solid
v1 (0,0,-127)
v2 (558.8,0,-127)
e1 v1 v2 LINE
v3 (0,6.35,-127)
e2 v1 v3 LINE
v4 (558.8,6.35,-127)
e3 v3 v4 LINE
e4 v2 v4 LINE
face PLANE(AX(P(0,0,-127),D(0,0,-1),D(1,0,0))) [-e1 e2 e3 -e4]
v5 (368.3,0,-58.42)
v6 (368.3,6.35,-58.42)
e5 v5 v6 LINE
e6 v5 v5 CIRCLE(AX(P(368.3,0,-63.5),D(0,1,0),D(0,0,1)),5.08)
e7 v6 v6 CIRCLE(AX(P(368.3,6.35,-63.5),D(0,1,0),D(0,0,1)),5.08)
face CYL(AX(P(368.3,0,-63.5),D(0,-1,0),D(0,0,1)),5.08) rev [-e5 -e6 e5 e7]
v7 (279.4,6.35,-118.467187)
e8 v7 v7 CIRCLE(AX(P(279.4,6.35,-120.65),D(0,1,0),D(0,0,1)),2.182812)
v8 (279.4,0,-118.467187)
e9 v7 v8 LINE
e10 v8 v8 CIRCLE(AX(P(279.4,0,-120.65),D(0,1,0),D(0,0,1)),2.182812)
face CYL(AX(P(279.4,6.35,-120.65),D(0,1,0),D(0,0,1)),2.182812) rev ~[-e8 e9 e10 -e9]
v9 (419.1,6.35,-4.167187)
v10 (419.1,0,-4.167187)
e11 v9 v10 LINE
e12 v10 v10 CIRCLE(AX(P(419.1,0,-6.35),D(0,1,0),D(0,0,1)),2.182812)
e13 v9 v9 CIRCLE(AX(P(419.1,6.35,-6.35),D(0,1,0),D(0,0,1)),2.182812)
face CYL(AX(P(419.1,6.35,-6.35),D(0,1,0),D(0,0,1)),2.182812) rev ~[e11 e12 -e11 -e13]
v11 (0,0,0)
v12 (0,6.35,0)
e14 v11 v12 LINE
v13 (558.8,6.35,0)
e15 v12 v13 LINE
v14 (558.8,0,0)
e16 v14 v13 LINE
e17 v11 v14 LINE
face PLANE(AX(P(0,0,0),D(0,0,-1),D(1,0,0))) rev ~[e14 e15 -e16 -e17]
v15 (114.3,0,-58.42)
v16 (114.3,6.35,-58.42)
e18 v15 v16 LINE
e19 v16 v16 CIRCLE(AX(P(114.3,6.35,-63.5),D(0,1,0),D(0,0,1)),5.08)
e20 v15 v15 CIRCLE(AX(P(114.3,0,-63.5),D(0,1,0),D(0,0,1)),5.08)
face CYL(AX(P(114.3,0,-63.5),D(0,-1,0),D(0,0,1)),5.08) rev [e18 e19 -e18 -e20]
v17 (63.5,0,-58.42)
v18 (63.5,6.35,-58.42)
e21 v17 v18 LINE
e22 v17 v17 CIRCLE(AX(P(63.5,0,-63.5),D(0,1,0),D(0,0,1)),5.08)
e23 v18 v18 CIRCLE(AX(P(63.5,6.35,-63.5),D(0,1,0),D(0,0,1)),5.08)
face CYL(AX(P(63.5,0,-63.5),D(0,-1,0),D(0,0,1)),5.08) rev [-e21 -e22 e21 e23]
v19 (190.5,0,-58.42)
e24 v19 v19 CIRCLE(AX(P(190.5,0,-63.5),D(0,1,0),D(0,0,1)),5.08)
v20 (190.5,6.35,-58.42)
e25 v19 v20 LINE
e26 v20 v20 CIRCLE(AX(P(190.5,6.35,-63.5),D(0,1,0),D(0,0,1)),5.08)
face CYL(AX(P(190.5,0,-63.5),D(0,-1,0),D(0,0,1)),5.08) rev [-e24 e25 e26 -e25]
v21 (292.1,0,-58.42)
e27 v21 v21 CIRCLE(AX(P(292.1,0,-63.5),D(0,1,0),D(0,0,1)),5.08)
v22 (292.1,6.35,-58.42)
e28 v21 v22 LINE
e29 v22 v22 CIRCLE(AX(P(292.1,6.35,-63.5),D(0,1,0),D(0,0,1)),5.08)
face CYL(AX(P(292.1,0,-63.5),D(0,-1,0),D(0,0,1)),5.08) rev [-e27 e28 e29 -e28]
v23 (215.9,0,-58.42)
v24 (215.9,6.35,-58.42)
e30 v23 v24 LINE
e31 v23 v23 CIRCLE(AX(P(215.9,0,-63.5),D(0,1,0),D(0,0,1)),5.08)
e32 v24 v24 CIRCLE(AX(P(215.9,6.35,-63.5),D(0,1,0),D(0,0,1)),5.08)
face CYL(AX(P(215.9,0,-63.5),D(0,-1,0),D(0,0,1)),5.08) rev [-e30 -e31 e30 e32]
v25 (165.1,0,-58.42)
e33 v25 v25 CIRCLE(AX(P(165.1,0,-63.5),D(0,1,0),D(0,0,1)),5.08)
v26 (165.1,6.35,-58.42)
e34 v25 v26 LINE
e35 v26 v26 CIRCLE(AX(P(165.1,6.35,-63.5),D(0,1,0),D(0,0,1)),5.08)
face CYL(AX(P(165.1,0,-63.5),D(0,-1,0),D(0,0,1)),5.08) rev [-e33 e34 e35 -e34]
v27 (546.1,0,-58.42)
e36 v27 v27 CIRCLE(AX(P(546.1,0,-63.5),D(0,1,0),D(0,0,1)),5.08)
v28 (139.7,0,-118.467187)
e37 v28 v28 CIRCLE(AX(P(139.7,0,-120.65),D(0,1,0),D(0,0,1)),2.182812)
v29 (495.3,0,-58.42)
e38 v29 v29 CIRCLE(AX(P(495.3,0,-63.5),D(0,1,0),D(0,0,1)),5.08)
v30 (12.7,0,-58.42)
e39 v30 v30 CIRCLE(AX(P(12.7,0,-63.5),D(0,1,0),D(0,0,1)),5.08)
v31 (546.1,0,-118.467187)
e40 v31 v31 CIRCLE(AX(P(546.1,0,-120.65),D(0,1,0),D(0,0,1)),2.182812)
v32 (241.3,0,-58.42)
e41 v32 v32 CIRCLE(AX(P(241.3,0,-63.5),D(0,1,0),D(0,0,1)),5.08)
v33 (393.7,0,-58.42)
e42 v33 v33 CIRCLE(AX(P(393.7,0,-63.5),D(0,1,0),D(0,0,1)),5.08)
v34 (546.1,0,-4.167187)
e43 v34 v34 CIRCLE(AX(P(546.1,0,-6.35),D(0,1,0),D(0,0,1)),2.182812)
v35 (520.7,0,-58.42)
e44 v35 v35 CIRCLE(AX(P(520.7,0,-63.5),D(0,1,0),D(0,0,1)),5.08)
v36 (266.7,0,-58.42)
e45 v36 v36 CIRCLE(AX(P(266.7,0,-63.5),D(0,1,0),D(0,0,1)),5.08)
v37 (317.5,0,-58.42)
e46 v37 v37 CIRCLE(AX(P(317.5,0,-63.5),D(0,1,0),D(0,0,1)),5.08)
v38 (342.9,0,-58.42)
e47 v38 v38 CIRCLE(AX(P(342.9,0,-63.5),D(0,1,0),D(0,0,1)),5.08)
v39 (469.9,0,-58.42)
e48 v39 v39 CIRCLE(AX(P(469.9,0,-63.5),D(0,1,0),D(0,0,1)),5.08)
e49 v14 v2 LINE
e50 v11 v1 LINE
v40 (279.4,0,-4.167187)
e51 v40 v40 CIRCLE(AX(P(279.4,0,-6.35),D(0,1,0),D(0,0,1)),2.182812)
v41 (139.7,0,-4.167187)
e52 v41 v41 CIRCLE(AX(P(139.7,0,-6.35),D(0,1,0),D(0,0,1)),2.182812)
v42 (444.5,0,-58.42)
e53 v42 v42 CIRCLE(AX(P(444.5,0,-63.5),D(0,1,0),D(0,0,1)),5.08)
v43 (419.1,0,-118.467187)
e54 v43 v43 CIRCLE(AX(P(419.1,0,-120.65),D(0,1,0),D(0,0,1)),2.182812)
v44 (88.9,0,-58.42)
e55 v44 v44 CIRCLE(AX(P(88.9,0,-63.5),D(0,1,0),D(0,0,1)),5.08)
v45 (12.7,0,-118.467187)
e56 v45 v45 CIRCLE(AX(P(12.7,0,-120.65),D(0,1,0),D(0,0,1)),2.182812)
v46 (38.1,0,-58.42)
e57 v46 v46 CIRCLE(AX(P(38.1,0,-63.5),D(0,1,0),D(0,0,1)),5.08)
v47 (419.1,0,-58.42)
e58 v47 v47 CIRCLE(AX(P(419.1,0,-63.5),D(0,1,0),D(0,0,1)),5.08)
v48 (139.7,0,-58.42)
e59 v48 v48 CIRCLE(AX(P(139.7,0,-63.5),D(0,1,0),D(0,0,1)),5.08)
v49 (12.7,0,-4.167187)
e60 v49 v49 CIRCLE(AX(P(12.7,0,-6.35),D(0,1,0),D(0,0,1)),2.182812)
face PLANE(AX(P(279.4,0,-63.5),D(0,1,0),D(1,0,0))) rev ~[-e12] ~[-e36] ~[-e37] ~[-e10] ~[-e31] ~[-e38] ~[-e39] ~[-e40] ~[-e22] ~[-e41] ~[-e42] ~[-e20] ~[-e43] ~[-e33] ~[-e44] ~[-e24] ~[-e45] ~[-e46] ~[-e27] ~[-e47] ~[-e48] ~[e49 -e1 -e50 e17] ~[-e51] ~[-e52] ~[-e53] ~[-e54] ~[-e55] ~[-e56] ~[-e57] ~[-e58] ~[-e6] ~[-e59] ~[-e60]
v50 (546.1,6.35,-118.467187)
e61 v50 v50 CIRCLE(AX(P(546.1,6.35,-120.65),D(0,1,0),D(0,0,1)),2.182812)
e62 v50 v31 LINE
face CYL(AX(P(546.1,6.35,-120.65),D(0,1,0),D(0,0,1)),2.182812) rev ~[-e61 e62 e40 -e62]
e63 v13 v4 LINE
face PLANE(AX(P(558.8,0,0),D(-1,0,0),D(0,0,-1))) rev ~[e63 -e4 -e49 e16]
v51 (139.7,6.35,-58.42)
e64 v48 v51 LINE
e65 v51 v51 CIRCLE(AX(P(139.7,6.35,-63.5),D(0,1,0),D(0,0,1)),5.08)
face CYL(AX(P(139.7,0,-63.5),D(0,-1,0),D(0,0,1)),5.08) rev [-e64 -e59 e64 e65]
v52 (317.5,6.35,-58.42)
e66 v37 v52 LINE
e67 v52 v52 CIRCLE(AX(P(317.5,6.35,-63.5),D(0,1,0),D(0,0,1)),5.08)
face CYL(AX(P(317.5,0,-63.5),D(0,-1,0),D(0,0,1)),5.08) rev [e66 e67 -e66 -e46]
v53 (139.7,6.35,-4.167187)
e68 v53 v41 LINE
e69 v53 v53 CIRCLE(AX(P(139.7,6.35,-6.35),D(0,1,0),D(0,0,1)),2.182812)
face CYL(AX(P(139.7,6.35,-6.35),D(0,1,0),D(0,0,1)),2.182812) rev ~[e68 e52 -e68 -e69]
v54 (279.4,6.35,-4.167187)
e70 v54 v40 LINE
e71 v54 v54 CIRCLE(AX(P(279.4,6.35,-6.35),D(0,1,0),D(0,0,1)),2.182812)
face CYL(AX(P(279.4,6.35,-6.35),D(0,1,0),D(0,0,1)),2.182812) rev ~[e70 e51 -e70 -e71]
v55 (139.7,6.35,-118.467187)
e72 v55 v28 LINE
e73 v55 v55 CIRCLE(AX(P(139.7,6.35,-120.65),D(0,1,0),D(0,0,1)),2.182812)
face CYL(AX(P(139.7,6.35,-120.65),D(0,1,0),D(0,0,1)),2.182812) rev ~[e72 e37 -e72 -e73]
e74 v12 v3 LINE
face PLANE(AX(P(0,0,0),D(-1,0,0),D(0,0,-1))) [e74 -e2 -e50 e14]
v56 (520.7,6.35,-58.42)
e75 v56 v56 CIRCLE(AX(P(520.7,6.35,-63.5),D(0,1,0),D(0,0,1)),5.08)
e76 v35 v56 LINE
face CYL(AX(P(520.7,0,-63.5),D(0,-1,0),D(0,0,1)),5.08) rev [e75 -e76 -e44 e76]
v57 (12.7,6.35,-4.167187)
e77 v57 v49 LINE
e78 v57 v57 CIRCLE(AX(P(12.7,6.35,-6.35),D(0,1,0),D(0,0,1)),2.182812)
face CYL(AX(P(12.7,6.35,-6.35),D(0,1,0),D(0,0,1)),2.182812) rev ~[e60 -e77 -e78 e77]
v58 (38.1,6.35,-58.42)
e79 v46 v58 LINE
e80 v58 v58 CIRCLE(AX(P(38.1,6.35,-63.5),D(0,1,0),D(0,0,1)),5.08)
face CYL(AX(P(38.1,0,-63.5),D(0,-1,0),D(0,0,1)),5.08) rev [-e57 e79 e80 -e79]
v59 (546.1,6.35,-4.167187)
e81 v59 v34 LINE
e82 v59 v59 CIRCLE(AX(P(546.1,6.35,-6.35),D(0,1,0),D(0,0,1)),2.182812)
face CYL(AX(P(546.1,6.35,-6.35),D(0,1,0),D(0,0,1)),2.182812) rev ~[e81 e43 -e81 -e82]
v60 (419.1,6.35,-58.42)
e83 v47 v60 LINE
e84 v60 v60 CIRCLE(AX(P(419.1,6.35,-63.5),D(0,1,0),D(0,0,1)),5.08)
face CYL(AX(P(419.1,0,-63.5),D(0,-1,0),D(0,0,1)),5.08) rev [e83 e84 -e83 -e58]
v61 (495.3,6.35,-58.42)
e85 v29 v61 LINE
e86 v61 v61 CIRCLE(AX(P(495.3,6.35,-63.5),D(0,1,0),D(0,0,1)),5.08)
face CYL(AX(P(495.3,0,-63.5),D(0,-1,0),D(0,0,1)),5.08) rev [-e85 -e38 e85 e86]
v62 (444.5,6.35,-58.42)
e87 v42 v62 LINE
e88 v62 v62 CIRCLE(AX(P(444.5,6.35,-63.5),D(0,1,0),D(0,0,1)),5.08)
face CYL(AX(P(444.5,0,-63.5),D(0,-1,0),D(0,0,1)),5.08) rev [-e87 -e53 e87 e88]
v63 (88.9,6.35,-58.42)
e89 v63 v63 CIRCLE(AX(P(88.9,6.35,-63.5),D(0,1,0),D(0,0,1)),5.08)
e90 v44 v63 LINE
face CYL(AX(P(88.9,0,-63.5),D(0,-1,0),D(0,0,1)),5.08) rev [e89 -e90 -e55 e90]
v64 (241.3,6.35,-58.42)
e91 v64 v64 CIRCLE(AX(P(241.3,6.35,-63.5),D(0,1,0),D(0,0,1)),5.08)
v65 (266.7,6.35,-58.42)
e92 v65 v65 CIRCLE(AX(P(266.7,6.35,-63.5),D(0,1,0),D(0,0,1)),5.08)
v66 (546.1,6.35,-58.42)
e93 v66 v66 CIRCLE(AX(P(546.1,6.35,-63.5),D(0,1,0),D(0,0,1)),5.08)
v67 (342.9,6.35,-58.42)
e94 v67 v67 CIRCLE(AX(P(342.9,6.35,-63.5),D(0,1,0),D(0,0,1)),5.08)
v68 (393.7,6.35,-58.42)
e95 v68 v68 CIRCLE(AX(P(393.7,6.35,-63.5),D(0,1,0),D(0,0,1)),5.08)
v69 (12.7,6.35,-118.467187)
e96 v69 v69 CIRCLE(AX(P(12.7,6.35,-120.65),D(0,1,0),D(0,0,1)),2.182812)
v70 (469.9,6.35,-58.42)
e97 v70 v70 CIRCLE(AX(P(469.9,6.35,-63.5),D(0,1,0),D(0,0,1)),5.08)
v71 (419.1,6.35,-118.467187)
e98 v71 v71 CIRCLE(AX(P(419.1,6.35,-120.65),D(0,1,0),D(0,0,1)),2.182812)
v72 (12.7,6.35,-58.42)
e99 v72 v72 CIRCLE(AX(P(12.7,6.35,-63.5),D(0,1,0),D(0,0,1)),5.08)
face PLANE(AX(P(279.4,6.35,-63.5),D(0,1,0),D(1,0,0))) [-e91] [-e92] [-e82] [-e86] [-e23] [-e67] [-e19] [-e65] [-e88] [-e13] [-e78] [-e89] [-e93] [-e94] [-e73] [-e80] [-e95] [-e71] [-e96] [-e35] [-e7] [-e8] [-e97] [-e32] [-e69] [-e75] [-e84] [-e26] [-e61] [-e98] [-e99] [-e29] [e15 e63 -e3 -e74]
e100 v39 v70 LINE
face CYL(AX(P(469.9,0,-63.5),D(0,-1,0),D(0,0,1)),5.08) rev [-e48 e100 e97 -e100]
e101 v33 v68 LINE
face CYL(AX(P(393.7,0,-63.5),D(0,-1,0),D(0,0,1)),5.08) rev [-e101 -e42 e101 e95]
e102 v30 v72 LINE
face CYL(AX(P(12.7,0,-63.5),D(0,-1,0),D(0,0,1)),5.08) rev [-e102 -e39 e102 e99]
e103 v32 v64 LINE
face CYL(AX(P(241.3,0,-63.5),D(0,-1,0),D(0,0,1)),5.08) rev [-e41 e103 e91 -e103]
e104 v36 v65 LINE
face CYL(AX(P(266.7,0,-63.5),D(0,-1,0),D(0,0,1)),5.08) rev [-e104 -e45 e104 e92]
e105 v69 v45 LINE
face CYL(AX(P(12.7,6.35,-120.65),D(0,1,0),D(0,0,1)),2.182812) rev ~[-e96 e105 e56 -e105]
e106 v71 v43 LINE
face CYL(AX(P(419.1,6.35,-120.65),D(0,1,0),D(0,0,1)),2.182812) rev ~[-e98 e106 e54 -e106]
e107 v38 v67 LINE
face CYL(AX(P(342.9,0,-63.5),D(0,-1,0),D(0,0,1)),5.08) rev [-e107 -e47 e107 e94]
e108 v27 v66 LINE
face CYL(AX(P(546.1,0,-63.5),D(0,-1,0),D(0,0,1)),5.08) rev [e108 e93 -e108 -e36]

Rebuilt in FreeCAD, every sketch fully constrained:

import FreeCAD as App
import Part
import Sketcher
Q = App.Units.Quantity

doc = App.newDocument("Part")
body = doc.addObject("PartDesign::Body", "Body")

# Sketch on XZ plane
sketch1 = doc.addObject("Sketcher::SketchObject", "Sketch")
body.addObject(sketch1)
sketch1.AttachmentSupport = (doc.XZ_Plane, [""])
sketch1.MapMode = "FlatFace"
sketch1.addGeometry([
    Part.LineSegment(App.Vector(0, -127, 0), App.Vector(0, 0, 0)),  # 0
    Part.LineSegment(App.Vector(0, 0, 0), App.Vector(558.8, 0, 0)),  # 1
    Part.LineSegment(App.Vector(558.8, 0, 0), App.Vector(558.8, -127, 0)),  # 2
    Part.LineSegment(App.Vector(558.8, -127, 0), App.Vector(0, -127, 0)),  # 3
    Part.Circle(App.Vector(12.7, -63.5, 0), App.Vector(0, 0, 1), 5.08),  # 4
    Part.Circle(App.Vector(38.1, -63.5, 0), App.Vector(0, 0, 1), 5.08),  # 5
    Part.Circle(App.Vector(63.5, -63.5, 0), App.Vector(0, 0, 1), 5.08),  # 6
    Part.Circle(App.Vector(88.9, -63.5, 0), App.Vector(0, 0, 1), 5.08),  # 7
    Part.Circle(App.Vector(114.3, -63.5, 0), App.Vector(0, 0, 1), 5.08),  # 8
    Part.Circle(App.Vector(139.7, -63.5, 0), App.Vector(0, 0, 1), 5.08),  # 9
    Part.Circle(App.Vector(165.1, -63.5, 0), App.Vector(0, 0, 1), 5.08),  # 10
    Part.Circle(App.Vector(190.5, -63.5, 0), App.Vector(0, 0, 1), 5.08),  # 11
    Part.Circle(App.Vector(215.9, -63.5, 0), App.Vector(0, 0, 1), 5.08),  # 12
    Part.Circle(App.Vector(241.3, -63.5, 0), App.Vector(0, 0, 1), 5.08),  # 13
    Part.Circle(App.Vector(266.7, -63.5, 0), App.Vector(0, 0, 1), 5.08),  # 14
    Part.Circle(App.Vector(292.1, -63.5, 0), App.Vector(0, 0, 1), 5.08),  # 15
    Part.Circle(App.Vector(317.5, -63.5, 0), App.Vector(0, 0, 1), 5.08),  # 16
    Part.Circle(App.Vector(342.9, -63.5, 0), App.Vector(0, 0, 1), 5.08),  # 17
    Part.Circle(App.Vector(368.3, -63.5, 0), App.Vector(0, 0, 1), 5.08),  # 18
    Part.Circle(App.Vector(393.7, -63.5, 0), App.Vector(0, 0, 1), 5.08),  # 19
    Part.Circle(App.Vector(419.1, -63.5, 0), App.Vector(0, 0, 1), 5.08),  # 20
    Part.Circle(App.Vector(444.5, -63.5, 0), App.Vector(0, 0, 1), 5.08),  # 21
    Part.Circle(App.Vector(469.9, -63.5, 0), App.Vector(0, 0, 1), 5.08),  # 22
    Part.Circle(App.Vector(495.3, -63.5, 0), App.Vector(0, 0, 1), 5.08),  # 23
    Part.Circle(App.Vector(520.7, -63.5, 0), App.Vector(0, 0, 1), 5.08),  # 24
    Part.Circle(App.Vector(546.1, -63.5, 0), App.Vector(0, 0, 1), 5.08),  # 25
], False)
sketch1.addConstraint([
    Sketcher.Constraint("Coincident", 0, 2, 1, 1),
    Sketcher.Constraint("Coincident", 1, 2, 2, 1),
    Sketcher.Constraint("Coincident", 2, 2, 3, 1),
    Sketcher.Constraint("Coincident", 3, 2, 0, 1),
    Sketcher.Constraint("Vertical", 0),
    Sketcher.Constraint("Horizontal", 1),
    Sketcher.Constraint("Vertical", 2),
    Sketcher.Constraint("Horizontal", 3),
    Sketcher.Constraint("Coincident", 0, 2, -1, 1),
    Sketcher.Constraint("Equal", 4, 5),
    Sketcher.Constraint("Equal", 5, 6),
    Sketcher.Constraint("Equal", 6, 7),
    Sketcher.Constraint("Equal", 7, 8),
    Sketcher.Constraint("Equal", 8, 9),
    Sketcher.Constraint("Equal", 9, 10),
    Sketcher.Constraint("Equal", 10, 11),
    Sketcher.Constraint("Equal", 11, 12),
    Sketcher.Constraint("Equal", 12, 13),
    Sketcher.Constraint("Equal", 13, 14),
    Sketcher.Constraint("Equal", 14, 15),
    Sketcher.Constraint("Equal", 15, 16),
    Sketcher.Constraint("Equal", 16, 17),
    Sketcher.Constraint("Equal", 17, 18),
    Sketcher.Constraint("Equal", 18, 19),
    Sketcher.Constraint("Equal", 19, 20),
    Sketcher.Constraint("Equal", 20, 21),
    Sketcher.Constraint("Equal", 21, 22),
    Sketcher.Constraint("Equal", 22, 23),
    Sketcher.Constraint("Equal", 23, 24),
    Sketcher.Constraint("Equal", 24, 25),
    Sketcher.Constraint("Horizontal", 4, 3, 5, 3),
    Sketcher.Constraint("Horizontal", 5, 3, 6, 3),
    Sketcher.Constraint("Horizontal", 6, 3, 7, 3),
    Sketcher.Constraint("Horizontal", 7, 3, 8, 3),
    Sketcher.Constraint("Horizontal", 8, 3, 9, 3),
    Sketcher.Constraint("Horizontal", 9, 3, 10, 3),
    Sketcher.Constraint("Horizontal", 10, 3, 11, 3),
    Sketcher.Constraint("Horizontal", 11, 3, 12, 3),
    Sketcher.Constraint("Horizontal", 12, 3, 13, 3),
    Sketcher.Constraint("Horizontal", 13, 3, 14, 3),
    Sketcher.Constraint("Horizontal", 14, 3, 15, 3),
    Sketcher.Constraint("Horizontal", 15, 3, 16, 3),
    Sketcher.Constraint("Horizontal", 16, 3, 17, 3),
    Sketcher.Constraint("Horizontal", 17, 3, 18, 3),
    Sketcher.Constraint("Horizontal", 18, 3, 19, 3),
    Sketcher.Constraint("Horizontal", 19, 3, 20, 3),
    Sketcher.Constraint("Horizontal", 20, 3, 21, 3),
    Sketcher.Constraint("Horizontal", 21, 3, 22, 3),
    Sketcher.Constraint("Horizontal", 22, 3, 23, 3),
    Sketcher.Constraint("Horizontal", 23, 3, 24, 3),
    Sketcher.Constraint("Horizontal", 24, 3, 25, 3),
    Sketcher.Constraint("Diameter", 4, Q("0.4 in")),
    Sketcher.Constraint("DistanceX", 1, 1, 1, 2, Q("22 in")),
    Sketcher.Constraint("DistanceY", 0, 1, 0, 2, Q("5 in")),
    Sketcher.Constraint("DistanceX", 4, 3, 5, 3, Q("1 in")),
    Sketcher.Constraint("DistanceX", 5, 3, 6, 3, Q("1 in")),
    Sketcher.Constraint("DistanceX", 6, 3, 7, 3, Q("1 in")),
    Sketcher.Constraint("DistanceX", 7, 3, 8, 3, Q("1 in")),
    Sketcher.Constraint("DistanceX", 8, 3, 9, 3, Q("1 in")),
    Sketcher.Constraint("DistanceX", 9, 3, 10, 3, Q("1 in")),
    Sketcher.Constraint("DistanceX", 10, 3, 11, 3, Q("1 in")),
    Sketcher.Constraint("DistanceX", 11, 3, 12, 3, Q("1 in")),
    Sketcher.Constraint("DistanceX", 12, 3, 13, 3, Q("1 in")),
    Sketcher.Constraint("DistanceX", 13, 3, 14, 3, Q("1 in")),
    Sketcher.Constraint("DistanceX", 14, 3, 15, 3, Q("1 in")),
    Sketcher.Constraint("DistanceX", 15, 3, 16, 3, Q("1 in")),
    Sketcher.Constraint("DistanceX", 16, 3, 17, 3, Q("1 in")),
    Sketcher.Constraint("DistanceX", 17, 3, 18, 3, Q("1 in")),
    Sketcher.Constraint("DistanceX", 18, 3, 19, 3, Q("1 in")),
    Sketcher.Constraint("DistanceX", 19, 3, 20, 3, Q("1 in")),
    Sketcher.Constraint("DistanceX", 20, 3, 21, 3, Q("1 in")),
    Sketcher.Constraint("DistanceX", 21, 3, 22, 3, Q("1 in")),
    Sketcher.Constraint("DistanceX", 22, 3, 23, 3, Q("1 in")),
    Sketcher.Constraint("DistanceX", 23, 3, 24, 3, Q("1 in")),
    Sketcher.Constraint("DistanceX", 24, 3, 25, 3, Q("1 in")),
    Sketcher.Constraint("DistanceX", -1, 1, 4, 3, Q("0.5 in")),
    Sketcher.Constraint("DistanceY", 4, 3, -1, 1, Q("2.5 in")),
])
pad1 = doc.addObject("PartDesign::Pad", "Pad")
body.addObject(pad1)
pad1.Profile = sketch1
pad1.Length = Q("0.25 in")
pad1.Reversed = True

# Sketch on XZ plane
sketch2 = doc.addObject("Sketcher::SketchObject", "Sketch001")
body.addObject(sketch2)
sketch2.AttachmentSupport = (doc.XZ_Plane, [""])
sketch2.MapMode = "FlatFace"
sketch2.AttachmentOffset = App.Placement(App.Vector(0, 0, -0.25 * 25.4), App.Rotation())
sketch2.addGeometry([
    Part.Circle(App.Vector(12.7, -120.65, 0), App.Vector(0, 0, 1), 2.182812),  # 0
    Part.Circle(App.Vector(139.7, -120.65, 0), App.Vector(0, 0, 1), 2.182812),  # 1
    Part.Circle(App.Vector(279.4, -120.65, 0), App.Vector(0, 0, 1), 2.182812),  # 2
    Part.Circle(App.Vector(419.1, -120.65, 0), App.Vector(0, 0, 1), 2.182812),  # 3
    Part.Circle(App.Vector(546.1, -120.65, 0), App.Vector(0, 0, 1), 2.182812),  # 4
    Part.Circle(App.Vector(546.1, -6.35, 0), App.Vector(0, 0, 1), 2.182812),  # 5
    Part.Circle(App.Vector(419.1, -6.35, 0), App.Vector(0, 0, 1), 2.182812),  # 6
    Part.Circle(App.Vector(279.4, -6.35, 0), App.Vector(0, 0, 1), 2.182812),  # 7
    Part.Circle(App.Vector(139.7, -6.35, 0), App.Vector(0, 0, 1), 2.182812),  # 8
    Part.Circle(App.Vector(12.7, -6.35, 0), App.Vector(0, 0, 1), 2.182812),  # 9
], False)
sketch2.addConstraint([
    Sketcher.Constraint("Equal", 0, 1),
    Sketcher.Constraint("Equal", 1, 2),
    Sketcher.Constraint("Equal", 2, 3),
    Sketcher.Constraint("Equal", 3, 4),
    Sketcher.Constraint("Equal", 4, 5),
    Sketcher.Constraint("Equal", 5, 6),
    Sketcher.Constraint("Equal", 6, 7),
    Sketcher.Constraint("Equal", 7, 8),
    Sketcher.Constraint("Equal", 8, 9),
    Sketcher.Constraint("Horizontal", 0, 3, 1, 3),
    Sketcher.Constraint("Horizontal", 1, 3, 2, 3),
    Sketcher.Constraint("Horizontal", 2, 3, 3, 3),
    Sketcher.Constraint("Horizontal", 3, 3, 4, 3),
    Sketcher.Constraint("Horizontal", 5, 3, 6, 3),
    Sketcher.Constraint("Horizontal", 6, 3, 7, 3),
    Sketcher.Constraint("Horizontal", 7, 3, 8, 3),
    Sketcher.Constraint("Horizontal", 8, 3, 9, 3),
    Sketcher.Constraint("Vertical", 4, 3, 5, 3),
    Sketcher.Constraint("Vertical", 3, 3, 6, 3),
    Sketcher.Constraint("Vertical", 2, 3, 7, 3),
    Sketcher.Constraint("Vertical", 1, 3, 8, 3),
    Sketcher.Constraint("Vertical", 0, 3, 9, 3),
    Sketcher.Constraint("Diameter", 0, Q("0.171875 in")),
    Sketcher.Constraint("DistanceX", -1, 1, 2, 3, Q("11 in")),
    Sketcher.Constraint("DistanceX", 0, 3, 1, 3, Q("5 in")),
    Sketcher.Constraint("DistanceX", 1, 3, 3, 3, Q("11 in")),
    Sketcher.Constraint("DistanceX", 3, 3, 4, 3, Q("5 in")),
    Sketcher.Constraint("DistanceX", -1, 1, 0, 3, Q("0.5 in")),
    Sketcher.Constraint("DistanceY", 4, 3, 5, 3, Q("4.5 in")),
    Sketcher.Constraint("DistanceY", 0, 3, -1, 1, Q("4.75 in")),
])
pocket1 = doc.addObject("PartDesign::Pocket", "Pocket")
body.addObject(pocket1)
pocket1.Profile = sketch2
pocket1.Length = Q("0.25 in")
pocket1.Reversed = True

doc.recompute()
